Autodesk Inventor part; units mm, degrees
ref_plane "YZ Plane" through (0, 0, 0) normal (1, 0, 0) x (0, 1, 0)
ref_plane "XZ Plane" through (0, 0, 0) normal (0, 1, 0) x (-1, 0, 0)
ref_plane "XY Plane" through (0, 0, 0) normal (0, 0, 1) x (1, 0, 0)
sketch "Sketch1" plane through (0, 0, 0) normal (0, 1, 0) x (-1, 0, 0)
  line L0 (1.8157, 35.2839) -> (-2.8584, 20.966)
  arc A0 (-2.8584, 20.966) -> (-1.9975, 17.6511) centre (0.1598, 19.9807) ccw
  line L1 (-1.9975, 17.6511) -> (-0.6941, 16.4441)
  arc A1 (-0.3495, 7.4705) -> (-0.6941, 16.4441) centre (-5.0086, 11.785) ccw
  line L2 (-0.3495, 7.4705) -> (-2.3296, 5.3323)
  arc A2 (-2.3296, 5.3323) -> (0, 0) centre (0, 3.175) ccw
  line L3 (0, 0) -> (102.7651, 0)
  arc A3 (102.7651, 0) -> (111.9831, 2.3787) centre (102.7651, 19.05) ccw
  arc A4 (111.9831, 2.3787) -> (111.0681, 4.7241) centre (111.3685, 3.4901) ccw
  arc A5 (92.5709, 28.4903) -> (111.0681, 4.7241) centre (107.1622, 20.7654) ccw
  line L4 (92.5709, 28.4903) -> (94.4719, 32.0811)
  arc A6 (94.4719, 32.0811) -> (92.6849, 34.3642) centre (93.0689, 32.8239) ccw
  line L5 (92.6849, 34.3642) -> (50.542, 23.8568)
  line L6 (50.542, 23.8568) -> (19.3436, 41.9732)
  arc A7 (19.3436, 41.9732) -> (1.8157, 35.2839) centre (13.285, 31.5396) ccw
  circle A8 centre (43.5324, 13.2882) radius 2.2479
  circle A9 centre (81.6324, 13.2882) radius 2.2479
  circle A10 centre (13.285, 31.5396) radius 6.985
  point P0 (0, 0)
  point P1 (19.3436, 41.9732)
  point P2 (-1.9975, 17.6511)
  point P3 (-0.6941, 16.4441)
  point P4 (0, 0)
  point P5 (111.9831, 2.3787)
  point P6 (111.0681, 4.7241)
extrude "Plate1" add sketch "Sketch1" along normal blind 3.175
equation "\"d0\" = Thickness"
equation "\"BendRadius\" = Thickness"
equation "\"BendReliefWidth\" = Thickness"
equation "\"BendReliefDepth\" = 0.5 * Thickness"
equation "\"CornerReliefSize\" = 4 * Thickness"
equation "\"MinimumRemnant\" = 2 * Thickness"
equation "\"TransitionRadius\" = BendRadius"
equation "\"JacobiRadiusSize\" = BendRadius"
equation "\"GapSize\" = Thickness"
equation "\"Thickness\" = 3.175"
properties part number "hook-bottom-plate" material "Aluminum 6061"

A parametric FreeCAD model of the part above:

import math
import FreeCAD as App
import Part
import Sketcher

V = App.Vector
Q = App.Units.Quantity

doc = App.newDocument("Part")
body = doc.addObject("PartDesign::Body", "Body")

# Sketch on XZ plane
sketch1 = doc.addObject("Sketcher::SketchObject", "Sketch")
body.addObject(sketch1)
sketch1.AttachmentSupport = (doc.XZ_Plane, [""])
sketch1.MapMode = "FlatFace"
sketch1.addGeometry([
    Part.ArcOfCircle(Part.Circle(V(-13.285, 31.5396, 0), V(0, 0, 1), 12.0651), math.radians(18.079935), math.radians(120.142949)),  # 0
    Part.LineSegment(V(-1.8157, 35.2839, 0), V(2.8584, 20.966, 0)),  # 1
    Part.ArcOfCircle(Part.Circle(V(-0.1598, 19.9807, 0), V(0, 0, 1), 3.174956), math.radians(-47.199116), math.radians(18.079419)),  # 2
    Part.LineSegment(V(1.9975, 17.6511, 0), V(0.6941, 16.4441, 0)),  # 3
    Part.ArcOfCircle(Part.Circle(V(5.0086, 11.785, 0), V(0, 0, 1), 6.34997), math.radians(132.800835), math.radians(222.800835)),  # 4
    Part.LineSegment(V(0.3495, 7.4705, 0), V(2.3296, 5.3323, 0)),  # 5
    Part.ArcOfCircle(Part.Circle(V(0, 3.175, 0), V(0, 0, 1), 3.175056), math.radians(-90), math.radians(42.800884)),  # 6
    Part.LineSegment(V(0, 0, 0), V(-102.7651, 0, 0)),  # 7
    Part.ArcOfCircle(Part.Circle(V(-102.7651, 19.05, 0), V(0, 0, 1), 19.05), math.radians(-118.939359), math.radians(-90)),  # 8
    Part.ArcOfCircle(Part.Circle(V(-111.3685, 3.4901, 0), V(0, 0, 1), 1.270017), math.radians(76.318267), math.radians(241.057572)),  # 9
    Part.ArcOfCircle(Part.Circle(V(-107.1622, 20.7654, 0), V(0, 0, 1), 16.51), math.radians(-103.684668), math.radians(27.89756)),  # 10
    Part.LineSegment(V(-92.5709, 28.4903, 0), V(-94.4719, 32.0811, 0)),  # 11
    Part.ArcOfCircle(Part.Circle(V(-93.0689, 32.8239, 0), V(0, 0, 1), 1.587501), math.radians(76.001398), math.radians(207.898397)),  # 12
    Part.LineSegment(V(-92.6849, 34.3642, 0), V(-50.542, 23.8568, 0)),  # 13
    Part.LineSegment(V(-50.542, 23.8568, 0), V(-19.3436, 41.9732, 0)),  # 14
    Part.Circle(V(-43.5324, 13.2882, 0), V(0, 0, 1), 2.2479),  # 15
    Part.Circle(V(-81.6324, 13.2882, 0), V(0, 0, 1), 2.2479),  # 16
    Part.Circle(V(-13.285, 31.5396, 0), V(0, 0, 1), 6.985),  # 17
], False)
sketch1.addConstraint([
    Sketcher.Constraint("Coincident", 0, 1, 1, 1),
    Sketcher.Constraint("Coincident", 1, 2, 2, 2),
    Sketcher.Constraint("Coincident", 2, 1, 3, 1),
    Sketcher.Constraint("Coincident", 3, 2, 4, 1),
    Sketcher.Constraint("Coincident", 4, 2, 5, 1),
    Sketcher.Constraint("Coincident", 5, 2, 6, 2),
    Sketcher.Constraint("Coincident", 6, 1, 7, 1),
    Sketcher.Constraint("Coincident", 7, 2, 8, 2),
    Sketcher.Constraint("Coincident", 8, 1, 9, 2),
    Sketcher.Constraint("Coincident", 9, 1, 10, 1),
    Sketcher.Constraint("Coincident", 10, 2, 11, 1),
    Sketcher.Constraint("Coincident", 11, 2, 12, 2),
    Sketcher.Constraint("Coincident", 12, 1, 13, 1),
    Sketcher.Constraint("Coincident", 13, 2, 14, 1),
    Sketcher.Constraint("Coincident", 14, 2, 0, 2),
    Sketcher.Constraint("Horizontal", 7),
    Sketcher.Constraint("Coincident", 6, 1, -1, 1),
    Sketcher.Constraint("Coincident", 17, 3, 0, 3),
    Sketcher.Constraint("PointOnObject", 6, 3, -2),
    Sketcher.Constraint("Diameter", 17, Q("0.55 in")),
    Sketcher.Constraint("Radius", 4, Q("0.25 in")),
    Sketcher.Constraint("Radius", 8, Q("0.75 in")),
    Sketcher.Constraint("Radius", 9, Q("0.05 in")),
    Sketcher.Constraint("Radius", 10, Q("0.65 in")),
    Sketcher.Constraint("Diameter", 15, Q("0.177 in")),
    Sketcher.Constraint("Diameter", 16, Q("0.177 in")),
    Sketcher.Constraint("Radius", 0, Q("0.475 in")),
    Sketcher.Constraint("Radius", 2, Q("0.125 in")),
    Sketcher.Constraint("Radius", 6, Q("0.125 in")),
    Sketcher.Constraint("Radius", 12, Q("0.0625 in")),
    Sketcher.Constraint("DistanceX", 16, 3, 15, 3, Q("1.5 in")),
    Sketcher.Constraint("DistanceX", 12, 1, -1, 1, Q("3.649 in")),
    Sketcher.Constraint("DistanceX", 8, 3, 16, 3, Q("0.832 in")),
    Sketcher.Constraint("DistanceY", 5, 2, 2, 1, Q("0.485 in")),
    Sketcher.Constraint("DistanceX", 7, 2, 16, 3, Q("0.832 in")),
    Sketcher.Constraint("DistanceX", 7, 2, 7, 1, Q("102.765 mm")),
    Sketcher.Constraint("DistanceX", 2, 3, -1, 1, Q("0.0063 in")),
    Sketcher.Constraint("DistanceX", -1, 1, 4, 3, Q("0.1972 in")),
    Sketcher.Constraint("DistanceY", -1, 1, 9, 3, Q("0.1374 in")),
    Sketcher.Constraint("DistanceY", -1, 1, 3, 2, Q("0.6474 in")),
    Sketcher.Constraint("DistanceY", -1, 1, 14, 2, Q("1.6525 in")),
    Sketcher.Constraint("DistanceY", 9, 3, 0, 3, Q("1.1043 in")),
    Sketcher.Constraint("DistanceX", 9, 3, 10, 3, Q("0.1656 in")),
    Sketcher.Constraint("DistanceY", 2, 3, 10, 3, Q("0.0309 in")),
    Sketcher.Constraint("DistanceX", 12, 3, 0, 3, Q("3.1411 in")),
    Sketcher.Constraint("DistanceX", 0, 1, 2, 3, Q("0.0652 in")),
    Sketcher.Constraint("DistanceY", 2, 3, 0, 1, Q("0.6025 in")),
    Sketcher.Constraint("DistanceY", 2, 3, 1, 2, Q("0.0388 in")),
    Sketcher.Constraint("DistanceX", 2, 1, 1, 2, Q("0.0339 in")),
    Sketcher.Constraint("DistanceX", 3, 2, 1, 2, Q("0.0852 in")),
    Sketcher.Constraint("DistanceY", 4, 2, 3, 2, Q("0.3533 in")),
    Sketcher.Constraint("DistanceX", 8, 1, 9, 3, Q("0.0242 in")),
    Sketcher.Constraint("DistanceY", 8, 1, 16, 3, Q("0.4295 in")),
    Sketcher.Constraint("DistanceX", 9, 1, 7, 2, Q("0.3269 in")),
    Sketcher.Constraint("DistanceX", 12, 3, 10, 2, Q("0.0196 in")),
    Sketcher.Constraint("DistanceX", 8, 3, 11, 2, Q("0.3265 in")),
    Sketcher.Constraint("DistanceY", 10, 3, 11, 2, Q("0.4455 in")),
    Sketcher.Constraint("DistanceX", 13, 2, 0, 3, Q("1.4668 in")),
    Sketcher.Constraint("Distance", 13, Q("43.433 mm")),
    Sketcher.Constraint("DistanceY", -1, 1, 15, 3, Q("13.2882 mm")),
])
pad1 = doc.addObject("PartDesign::Pad", "Pad")
body.addObject(pad1)
pad1.Profile = sketch1
pad1.Length = Q("0.125 in")
pad1.Reversed = True

doc.recompute()
